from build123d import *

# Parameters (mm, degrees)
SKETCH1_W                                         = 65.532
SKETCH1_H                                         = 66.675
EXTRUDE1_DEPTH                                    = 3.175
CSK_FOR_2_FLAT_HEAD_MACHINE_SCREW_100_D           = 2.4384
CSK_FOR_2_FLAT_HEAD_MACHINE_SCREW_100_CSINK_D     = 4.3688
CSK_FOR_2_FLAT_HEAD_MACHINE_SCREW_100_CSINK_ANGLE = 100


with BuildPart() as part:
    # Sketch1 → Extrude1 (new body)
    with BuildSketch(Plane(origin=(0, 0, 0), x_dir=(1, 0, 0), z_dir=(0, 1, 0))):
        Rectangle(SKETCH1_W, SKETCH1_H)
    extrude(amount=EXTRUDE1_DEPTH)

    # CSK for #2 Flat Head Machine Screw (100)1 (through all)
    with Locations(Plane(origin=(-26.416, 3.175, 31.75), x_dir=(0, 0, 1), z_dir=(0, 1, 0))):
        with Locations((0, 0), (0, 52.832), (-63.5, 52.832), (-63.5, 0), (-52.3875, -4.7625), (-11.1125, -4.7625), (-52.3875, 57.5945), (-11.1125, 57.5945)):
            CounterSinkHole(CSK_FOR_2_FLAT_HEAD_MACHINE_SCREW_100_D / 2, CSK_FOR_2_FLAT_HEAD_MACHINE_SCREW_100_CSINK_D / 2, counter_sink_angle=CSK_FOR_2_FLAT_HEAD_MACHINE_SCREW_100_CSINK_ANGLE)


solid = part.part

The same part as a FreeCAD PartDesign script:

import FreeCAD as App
import Part
import Sketcher
Q = App.Units.Quantity


def add_polygon(sketch, points):
    """Adds a closed chain of lines whose ends are joined by coincident constraints."""
    first, n = sketch.GeometryCount, len(points)
    for a, b in zip(points, points[1:] + points[:1]):
        sketch.addGeometry(Part.LineSegment(App.Vector(*a, 0), App.Vector(*b, 0)), False)
    for i in range(n):
        sketch.addConstraint(Sketcher.Constraint("Coincident", first + i, 2, first + (i + 1) % n, 1))

doc = App.newDocument("Part")
body = doc.addObject("PartDesign::Body", "Body")

# Sketch on XZ plane
sketch1 = doc.addObject("Sketcher::SketchObject", "Sketch")
body.addObject(sketch1)
sketch1.AttachmentSupport = (doc.XZ_Plane, [""])
sketch1.MapMode = "FlatFace"
add_polygon(sketch1, [(-33, -33), (-33, 33), (33, 33), (33, -33)])  # lines 0-3
sketch1.addConstraint([
    Sketcher.Constraint("Vertical", 0),
    Sketcher.Constraint("Horizontal", 1),
    Sketcher.Constraint("Vertical", 2),
    Sketcher.Constraint("Horizontal", 3),
    Sketcher.Constraint("Symmetric", 0, 2, 2, 2, -1, 1),
    Sketcher.Constraint("DistanceX", 1, 1, 1, 2, Q("2.58 in")),
    Sketcher.Constraint("DistanceY", 0, 1, 0, 2, Q("2.625 in")),
])
pad1 = doc.addObject("PartDesign::Pad", "Pad")
body.addObject(pad1)
pad1.Profile = sketch1
pad1.Length = Q("0.125 in")
pad1.Reversed = True

# Sketch on XZ plane
sketch2 = doc.addObject("Sketcher::SketchObject", "Sketch001")
body.addObject(sketch2)
sketch2.AttachmentSupport = (doc.XZ_Plane, [""])
sketch2.MapMode = "FlatFace"
sketch2.AttachmentOffset = App.Placement(App.Vector(0, 0, -0.125 * 25.4), App.Rotation())
sketch2.addGeometry([
    Part.Circle(App.Vector(-26.4, 31.8, 0), App.Vector(0, 0, 1), 1.2),  # 0
    Part.Circle(App.Vector(26.4, 31.8, 0), App.Vector(0, 0, 1), 1.2),  # 1
    Part.Circle(App.Vector(26.4, -31.8, 0), App.Vector(0, 0, 1), 1.2),  # 2
    Part.Circle(App.Vector(-26.4, -31.8, 0), App.Vector(0, 0, 1), 1.2),  # 3
    Part.Circle(App.Vector(-31.2, -20.6, 0), App.Vector(0, 0, 1), 1.2),  # 4
    Part.Circle(App.Vector(-31.2, 20.6, 0), App.Vector(0, 0, 1), 1.2),  # 5
    Part.Circle(App.Vector(31.2, -20.6, 0), App.Vector(0, 0, 1), 1.2),  # 6
    Part.Circle(App.Vector(31.2, 20.6, 0), App.Vector(0, 0, 1), 1.2),  # 7
], False)
sketch2.addConstraint([
    Sketcher.Constraint("Equal", 0, 1),
    Sketcher.Constraint("Equal", 1, 2),
    Sketcher.Constraint("Equal", 2, 3),
    Sketcher.Constraint("Equal", 3, 4),
    Sketcher.Constraint("Equal", 4, 5),
    Sketcher.Constraint("Equal", 5, 6),
    Sketcher.Constraint("Equal", 6, 7),
    Sketcher.Constraint("Symmetric", 0, 3, 2, 3, -1, 1),
    Sketcher.Constraint("Symmetric", 1, 3, 3, 3, -1, 1),
    Sketcher.Constraint("Symmetric", 5, 3, 6, 3, -1, 1),
    Sketcher.Constraint("Symmetric", 4, 3, 7, 3, -1, 1),
    Sketcher.Constraint("Symmetric", 0, 3, 1, 3, -2),
    Sketcher.Constraint("Symmetric", 4, 3, 6, 3, -2),
    Sketcher.Constraint("Diameter", 0, Q("0.096 in")),
    Sketcher.Constraint("DistanceY", 2, 3, 1, 3, Q("2.5 in")),
    Sketcher.Constraint("DistanceX", 0, 3, -1, 1, Q("1.04 in")),
    Sketcher.Constraint("DistanceY", 4, 3, -1, 1, Q("0.8125 in")),
    Sketcher.Constraint("DistanceX", 4, 3, 3, 3, Q("0.1875 in")),
])
doc.recompute()
hole = doc.addObject("PartDesign::Hole", "Hole")
body.addObject(hole)
hole.Profile = sketch2
hole.ThreadType = "None"
hole.Diameter = Q("0.096 in")
hole.DepthType = "ThroughAll"
hole.HoleCutType = "Countersink"
hole.HoleCutDiameter = Q("0.172 in")
hole.HoleCutCountersinkAngle = 100
hole.Reversed = True

doc.recompute()
